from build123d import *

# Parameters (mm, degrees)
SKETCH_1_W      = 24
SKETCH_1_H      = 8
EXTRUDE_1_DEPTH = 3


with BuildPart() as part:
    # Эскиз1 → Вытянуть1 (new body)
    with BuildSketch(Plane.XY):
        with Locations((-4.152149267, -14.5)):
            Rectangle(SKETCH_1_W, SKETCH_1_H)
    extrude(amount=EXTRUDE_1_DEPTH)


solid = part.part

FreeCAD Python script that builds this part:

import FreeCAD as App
import Part
import Sketcher

V = App.Vector
Q = App.Units.Quantity

doc = App.newDocument("Part")
body = doc.addObject("PartDesign::Body", "Body")

# Sketch on XY plane
sketch1 = body.newObject("Sketcher::SketchObject", "Sketch")
sketch1.AttachmentSupport = (doc.getObject("XY_Plane"), [""])
sketch1.MapMode = "FlatFace"
sketch1.addGeometry([
    Part.LineSegment(V(-16, -10, 0), V(-16, -18, 0)),
    Part.LineSegment(V(-16, -18, 0), V(8, -18, 0)),
    Part.LineSegment(V(8, -18, 0), V(8, -10, 0)),
    Part.LineSegment(V(8, -10, 0), V(-16, -10, 0)),
], False)
sketch1.addConstraint([
    Sketcher.Constraint("Coincident", 0, 2, 1, 1),
    Sketcher.Constraint("Coincident", 1, 2, 2, 1),
    Sketcher.Constraint("Coincident", 2, 2, 3, 1),
    Sketcher.Constraint("Coincident", 3, 2, 0, 1),
    Sketcher.Constraint("Vertical", 0),
    Sketcher.Constraint("Horizontal", 1),
    Sketcher.Constraint("Vertical", 2),
    Sketcher.Constraint("Horizontal", 3),
    Sketcher.Constraint("DistanceX", 1, 1, 1, 2, Q("24 mm")),
    Sketcher.Constraint("DistanceY", 0, 2, 0, 1, Q("8 mm")),
    Sketcher.Constraint("DistanceY", 0, 2, -1, 1, Q("18.5 mm")),
    Sketcher.Constraint("DistanceX", 0, 2, -1, 1, Q("16.152149 mm")),
])
pad1 = body.newObject("PartDesign::Pad", "Pad")
pad1.Profile = sketch1
pad1.Length = 3

doc.recompute()
